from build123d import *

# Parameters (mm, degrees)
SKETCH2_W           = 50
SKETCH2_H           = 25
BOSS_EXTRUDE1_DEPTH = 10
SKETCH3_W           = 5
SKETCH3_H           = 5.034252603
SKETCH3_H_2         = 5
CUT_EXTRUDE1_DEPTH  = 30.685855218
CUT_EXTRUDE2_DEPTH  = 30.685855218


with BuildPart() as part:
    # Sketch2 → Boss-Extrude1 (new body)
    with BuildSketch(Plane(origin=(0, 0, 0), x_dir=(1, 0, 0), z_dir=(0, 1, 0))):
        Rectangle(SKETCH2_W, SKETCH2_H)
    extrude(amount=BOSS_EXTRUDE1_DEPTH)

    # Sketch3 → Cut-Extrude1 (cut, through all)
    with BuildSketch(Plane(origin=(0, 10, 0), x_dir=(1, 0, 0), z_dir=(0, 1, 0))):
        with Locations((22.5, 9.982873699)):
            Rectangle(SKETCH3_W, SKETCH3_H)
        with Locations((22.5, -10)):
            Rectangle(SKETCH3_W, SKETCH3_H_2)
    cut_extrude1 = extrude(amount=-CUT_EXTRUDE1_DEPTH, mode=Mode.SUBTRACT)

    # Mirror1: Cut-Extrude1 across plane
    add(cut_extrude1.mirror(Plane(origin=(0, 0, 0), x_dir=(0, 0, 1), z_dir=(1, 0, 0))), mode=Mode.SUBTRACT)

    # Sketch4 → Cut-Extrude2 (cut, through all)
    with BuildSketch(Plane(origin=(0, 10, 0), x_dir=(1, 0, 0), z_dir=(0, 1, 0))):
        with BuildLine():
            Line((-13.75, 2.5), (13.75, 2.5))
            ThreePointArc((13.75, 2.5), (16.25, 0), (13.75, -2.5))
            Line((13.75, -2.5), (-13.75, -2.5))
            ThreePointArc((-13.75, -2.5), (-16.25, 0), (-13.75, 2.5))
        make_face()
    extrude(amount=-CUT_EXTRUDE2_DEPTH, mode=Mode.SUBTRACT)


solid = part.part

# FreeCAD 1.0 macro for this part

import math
import FreeCAD as App
import Part
import Sketcher
Q = App.Units.Quantity


def add_polygon(sketch, points):
    """Adds a closed chain of lines whose ends are joined by coincident constraints."""
    first, n = sketch.GeometryCount, len(points)
    for a, b in zip(points, points[1:] + points[:1]):
        sketch.addGeometry(Part.LineSegment(App.Vector(*a, 0), App.Vector(*b, 0)), False)
    for i in range(n):
        sketch.addConstraint(Sketcher.Constraint("Coincident", first + i, 2, first + (i + 1) % n, 1))

doc = App.newDocument("Part")
params = doc.addObject("Spreadsheet::Sheet", "Params")
for row, (alias, value) in enumerate([
    ("sketch1_width", "50 mm"),
    ("sketch1_height", "25 mm"),
    ("pad1_length", "10 mm"),
    ("sketch2_width", "5 mm"),
    ("sketch3_radius", "2.5 mm"),
    ("sketch3_width", "27.5 mm"),
], start=1):
    params.set(f"A{row}", alias)
    params.set(f"B{row}", "=" + value)
    params.setAlias(f"B{row}", alias)

body = doc.addObject("PartDesign::Body", "Body")

# Sketch on XZ plane
sketch1 = body.newObject("Sketcher::SketchObject", "Sketch")
sketch1.AttachmentSupport = (doc.getObject("XZ_Plane"), [""])
sketch1.MapMode = "FlatFace"
add_polygon(sketch1, [(-25, -12), (-25, 12), (25, 12), (25, -12)])  # lines 0-3
sketch1.addConstraint(Sketcher.Constraint("Vertical", 0))
sketch1.addConstraint(Sketcher.Constraint("Horizontal", 1))
sketch1.addConstraint(Sketcher.Constraint("Vertical", 2))
sketch1.addConstraint(Sketcher.Constraint("Horizontal", 3))
sketch1.addConstraint(Sketcher.Constraint("Symmetric", 0, 2, 2, 2, -1, 1))
sketch1.addConstraint(Sketcher.Constraint("DistanceX", 1, 1, 1, 2, Q("50 mm")))
sketch1.addConstraint(Sketcher.Constraint("DistanceY", 0, 1, 0, 2, Q("25 mm")))
sketch1.setExpression("Constraints[9]", "Params.sketch1_width")
sketch1.setExpression("Constraints[10]", "Params.sketch1_height")
pad1 = body.newObject("PartDesign::Pad", "Pad")
pad1.Profile = sketch1
pad1.setExpression("Length", "Params.pad1_length")
pad1.Reversed = True

# Sketch on XZ plane
sketch2 = body.newObject("Sketcher::SketchObject", "Sketch001")
sketch2.AttachmentSupport = (doc.getObject("XZ_Plane"), [""])
sketch2.MapMode = "FlatFace"
sketch2.AttachmentOffset = App.Placement(App.Vector(0, 0, -10), App.Rotation())
add_polygon(sketch2, [(20, -13), (20, -7), (25, -7), (25, -13)])  # lines 0-3
add_polygon(sketch2, [(20, 8), (20, 12), (25, 12), (25, 8)])  # lines 4-7
sketch2.addConstraint(Sketcher.Constraint("Vertical", 0))
sketch2.addConstraint(Sketcher.Constraint("Horizontal", 1))
sketch2.addConstraint(Sketcher.Constraint("Vertical", 2))
sketch2.addConstraint(Sketcher.Constraint("Horizontal", 3))
sketch2.addConstraint(Sketcher.Constraint("Vertical", 4))
sketch2.addConstraint(Sketcher.Constraint("Horizontal", 5))
sketch2.addConstraint(Sketcher.Constraint("Vertical", 6))
sketch2.addConstraint(Sketcher.Constraint("Horizontal", 7))
sketch2.addConstraint(Sketcher.Constraint("Symmetric", 3, 2, 4, 2, -1))
sketch2.addConstraint(Sketcher.Constraint("Vertical", 2, 2, 5, 2))
sketch2.addConstraint(Sketcher.Constraint("Equal", 7, 4))
sketch2.addConstraint(Sketcher.Constraint("DistanceX", 1, 1, 1, 2, Q("5 mm")))
sketch2.addConstraint(Sketcher.Constraint("DistanceX", -1, 1, 0, 2, Q("20 mm")))
sketch2.addConstraint(Sketcher.Constraint("DistanceY", 3, 2, 4, 2, Q("25 mm")))
sketch2.addConstraint(Sketcher.Constraint("DistanceY", 0, 1, 0, 2, Q("5.034253 mm")))
sketch2.setExpression("Constraints[19]", "Params.sketch2_width")
pocket1 = body.newObject("PartDesign::Pocket", "Pocket")
pocket1.Profile = sketch2
pocket1.Type = "ThroughAll"
pocket1.Reversed = True
doc.recompute()

mirrored = body.newObject("PartDesign::Mirrored", "Mirrored")
mirrored.Originals = [pocket1]
mirrored.MirrorPlane = (doc.getObject("YZ_Plane"), [""])
body.Tip = mirrored

# Sketch on XZ plane
sketch3 = body.newObject("Sketcher::SketchObject", "Sketch002")
sketch3.AttachmentSupport = (doc.getObject("XZ_Plane"), [""])
sketch3.MapMode = "FlatFace"
sketch3.AttachmentOffset = App.Placement(App.Vector(0, 0, -10), App.Rotation())
sketch3.addGeometry(Part.LineSegment(App.Vector(13.8, -2.5, 0), App.Vector(-13.8, -2.5, 0)), False)
sketch3.addGeometry(Part.ArcOfCircle(Part.Circle(App.Vector(-13.8, 0, 0), App.Vector(0, 0, 1), 2.5), math.radians(90), math.radians(270)), False)
sketch3.addGeometry(Part.LineSegment(App.Vector(-13.8, 2.5, 0), App.Vector(13.8, 2.5, 0)), False)
sketch3.addGeometry(Part.ArcOfCircle(Part.Circle(App.Vector(13.8, 0, 0), App.Vector(0, 0, 1), 2.5), math.radians(-90), math.radians(90)), False)
sketch3.addConstraint(Sketcher.Constraint("Tangent", 0, 2, 1, 2))
sketch3.addConstraint(Sketcher.Constraint("Tangent", 1, 1, 2, 1))
sketch3.addConstraint(Sketcher.Constraint("Tangent", 2, 2, 3, 2))
sketch3.addConstraint(Sketcher.Constraint("Tangent", 3, 1, 0, 1))
sketch3.addConstraint(Sketcher.Constraint("Horizontal", 0))
sketch3.addConstraint(Sketcher.Constraint("Horizontal", 2))
sketch3.addConstraint(Sketcher.Constraint("Symmetric", 1, 3, 3, 3, -1, 1))
sketch3.addConstraint(Sketcher.Constraint("Radius", 1, Q("2.5 mm")))
sketch3.addConstraint(Sketcher.Constraint("DistanceX", 0, 2, 0, 1, Q("27.5 mm")))
sketch3.setExpression("Constraints[7]", "Params.sketch3_radius")
sketch3.setExpression("Constraints[8]", "Params.sketch3_width")
pocket2 = body.newObject("PartDesign::Pocket", "Pocket001")
pocket2.Profile = sketch3
pocket2.Type = "ThroughAll"
pocket2.Reversed = True

doc.recompute()
